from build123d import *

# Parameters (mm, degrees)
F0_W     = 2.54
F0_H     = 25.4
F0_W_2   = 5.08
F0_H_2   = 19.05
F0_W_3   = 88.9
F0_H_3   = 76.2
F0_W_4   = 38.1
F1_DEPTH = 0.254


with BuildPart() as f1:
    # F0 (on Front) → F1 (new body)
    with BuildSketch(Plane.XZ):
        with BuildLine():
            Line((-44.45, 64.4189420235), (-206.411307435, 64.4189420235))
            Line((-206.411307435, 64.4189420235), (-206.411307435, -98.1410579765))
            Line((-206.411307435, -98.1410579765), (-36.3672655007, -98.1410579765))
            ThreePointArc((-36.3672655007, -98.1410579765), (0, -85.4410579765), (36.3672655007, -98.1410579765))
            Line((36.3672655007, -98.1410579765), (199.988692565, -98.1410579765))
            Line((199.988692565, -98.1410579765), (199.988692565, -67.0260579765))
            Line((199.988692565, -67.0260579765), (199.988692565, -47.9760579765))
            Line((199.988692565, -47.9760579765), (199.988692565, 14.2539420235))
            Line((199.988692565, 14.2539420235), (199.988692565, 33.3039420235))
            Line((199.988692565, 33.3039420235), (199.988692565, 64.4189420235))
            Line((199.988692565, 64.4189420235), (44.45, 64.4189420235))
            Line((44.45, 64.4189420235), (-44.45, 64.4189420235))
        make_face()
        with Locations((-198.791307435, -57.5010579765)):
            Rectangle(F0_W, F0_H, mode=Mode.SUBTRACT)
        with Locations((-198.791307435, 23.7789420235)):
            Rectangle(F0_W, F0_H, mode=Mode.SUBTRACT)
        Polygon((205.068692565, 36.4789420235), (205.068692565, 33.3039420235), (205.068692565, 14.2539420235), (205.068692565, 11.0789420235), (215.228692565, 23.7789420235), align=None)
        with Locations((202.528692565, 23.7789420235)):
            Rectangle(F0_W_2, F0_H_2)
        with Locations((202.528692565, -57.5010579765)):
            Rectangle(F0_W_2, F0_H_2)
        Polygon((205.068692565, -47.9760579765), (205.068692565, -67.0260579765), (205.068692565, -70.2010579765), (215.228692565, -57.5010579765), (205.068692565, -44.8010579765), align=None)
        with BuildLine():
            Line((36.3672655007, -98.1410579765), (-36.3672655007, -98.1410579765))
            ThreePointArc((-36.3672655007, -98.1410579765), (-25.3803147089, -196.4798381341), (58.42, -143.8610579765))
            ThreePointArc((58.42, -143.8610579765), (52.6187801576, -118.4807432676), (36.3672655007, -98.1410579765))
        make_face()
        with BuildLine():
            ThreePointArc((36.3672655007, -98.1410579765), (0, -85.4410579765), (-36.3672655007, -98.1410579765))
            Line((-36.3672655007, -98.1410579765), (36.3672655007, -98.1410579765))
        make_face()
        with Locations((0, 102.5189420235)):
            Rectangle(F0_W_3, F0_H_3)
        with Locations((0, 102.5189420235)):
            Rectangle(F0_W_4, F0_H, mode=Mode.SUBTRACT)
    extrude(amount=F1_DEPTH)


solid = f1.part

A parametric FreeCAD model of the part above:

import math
import FreeCAD as App
import Part
import Sketcher
Q = App.Units.Quantity


def add_polygon(sketch, points):
    """Adds a closed chain of lines whose ends are joined by coincident constraints."""
    first, n = sketch.GeometryCount, len(points)
    for a, b in zip(points, points[1:] + points[:1]):
        sketch.addGeometry(Part.LineSegment(App.Vector(*a, 0), App.Vector(*b, 0)), False)
    for i in range(n):
        sketch.addConstraint(Sketcher.Constraint("Coincident", first + i, 2, first + (i + 1) % n, 1))

doc = App.newDocument("Part")
body = doc.addObject("PartDesign::Body", "Body")

sketch1 = doc.addObject("Sketcher::SketchObject", "Sketch")
body.addObject(sketch1)
sketch1.AttachmentSupport = (doc.XZ_Plane, [""])
sketch1.MapMode = "FlatFace"
sketch1.addGeometry(Part.LineSegment(App.Vector(-206.4, 64.4, 0), App.Vector(-206.4, -98.1, 0)), False)
sketch1.addGeometry(Part.LineSegment(App.Vector(-206.4, -98.1, 0), App.Vector(-36.4, -98.1, 0)), False)
sketch1.addGeometry(Part.ArcOfCircle(Part.Circle(App.Vector(0, -143.9, 0), App.Vector(0, 0, 1), 58.4), math.radians(128), math.radians(360)), False)
sketch1.addGeometry(Part.ArcOfCircle(Part.Circle(App.Vector(0, -143.9, 0), App.Vector(0, 0, 1), 58.4), math.radians(0), math.radians(52)), False)
sketch1.addGeometry(Part.LineSegment(App.Vector(36.4, -98.1, 0), App.Vector(200, -98.1, 0)), False)
sketch1.addGeometry(Part.LineSegment(App.Vector(200, -98.1, 0), App.Vector(200, -67, 0)), False)
sketch1.addGeometry(Part.LineSegment(App.Vector(200, -67, 0), App.Vector(205.1, -67, 0)), False)
sketch1.addGeometry(Part.LineSegment(App.Vector(205.1, -67, 0), App.Vector(205.1, -70.2, 0)), False)
sketch1.addGeometry(Part.LineSegment(App.Vector(205.1, -70.2, 0), App.Vector(215.2, -57.5, 0)), False)
sketch1.addGeometry(Part.LineSegment(App.Vector(215.2, -57.5, 0), App.Vector(205.1, -44.8, 0)), False)
sketch1.addGeometry(Part.LineSegment(App.Vector(205.1, -44.8, 0), App.Vector(205.1, -48, 0)), False)
sketch1.addGeometry(Part.LineSegment(App.Vector(205.1, -48, 0), App.Vector(200, -48, 0)), False)
sketch1.addGeometry(Part.LineSegment(App.Vector(200, -48, 0), App.Vector(200, 14.3, 0)), False)
sketch1.addGeometry(Part.LineSegment(App.Vector(200, 14.3, 0), App.Vector(205.1, 14.3, 0)), False)
sketch1.addGeometry(Part.LineSegment(App.Vector(205.1, 14.3, 0), App.Vector(205.1, 11.1, 0)), False)
sketch1.addGeometry(Part.LineSegment(App.Vector(205.1, 11.1, 0), App.Vector(215.2, 23.8, 0)), False)
sketch1.addGeometry(Part.LineSegment(App.Vector(215.2, 23.8, 0), App.Vector(205.1, 36.5, 0)), False)
sketch1.addGeometry(Part.LineSegment(App.Vector(205.1, 36.5, 0), App.Vector(205.1, 33.3, 0)), False)
sketch1.addGeometry(Part.LineSegment(App.Vector(205.1, 33.3, 0), App.Vector(200, 33.3, 0)), False)
sketch1.addGeometry(Part.LineSegment(App.Vector(200, 33.3, 0), App.Vector(200, 64.4, 0)), False)
sketch1.addGeometry(Part.LineSegment(App.Vector(200, 64.4, 0), App.Vector(44.5, 64.4, 0)), False)
sketch1.addGeometry(Part.LineSegment(App.Vector(44.5, 64.4, 0), App.Vector(44.5, 140.6, 0)), False)
sketch1.addGeometry(Part.LineSegment(App.Vector(44.5, 140.6, 0), App.Vector(-44.5, 140.6, 0)), False)
sketch1.addGeometry(Part.LineSegment(App.Vector(-44.5, 140.6, 0), App.Vector(-44.5, 64.4, 0)), False)
sketch1.addGeometry(Part.LineSegment(App.Vector(-44.5, 64.4, 0), App.Vector(-206.4, 64.4, 0)), False)
add_polygon(sketch1, [(-197.5, -70.2), (-200.1, -70.2), (-200.1, -44.8), (-197.5, -44.8)])
add_polygon(sketch1, [(-197.5, 11.1), (-200.1, 11.1), (-200.1, 36.5), (-197.5, 36.5)])
add_polygon(sketch1, [(19.1, 89.8), (-19.1, 89.8), (-19.1, 115.2), (19.1, 115.2)])
sketch1.addConstraint([
    Sketcher.Constraint("Coincident", 0, 2, 1, 1),
    Sketcher.Constraint("Coincident", 1, 2, 2, 1),
    Sketcher.Constraint("Tangent", 2, 2, 3, 1),
    Sketcher.Constraint("Coincident", 3, 2, 4, 1),
    Sketcher.Constraint("Coincident", 4, 2, 5, 1),
    Sketcher.Constraint("Coincident", 5, 2, 6, 1),
    Sketcher.Constraint("Coincident", 6, 2, 7, 1),
    Sketcher.Constraint("Coincident", 7, 2, 8, 1),
    Sketcher.Constraint("Coincident", 8, 2, 9, 1),
    Sketcher.Constraint("Coincident", 9, 2, 10, 1),
    Sketcher.Constraint("Coincident", 10, 2, 11, 1),
    Sketcher.Constraint("Coincident", 11, 2, 12, 1),
    Sketcher.Constraint("Coincident", 12, 2, 13, 1),
    Sketcher.Constraint("Coincident", 13, 2, 14, 1),
    Sketcher.Constraint("Coincident", 14, 2, 15, 1),
    Sketcher.Constraint("Coincident", 15, 2, 16, 1),
    Sketcher.Constraint("Coincident", 16, 2, 17, 1),
    Sketcher.Constraint("Coincident", 17, 2, 18, 1),
    Sketcher.Constraint("Coincident", 18, 2, 19, 1),
    Sketcher.Constraint("Coincident", 19, 2, 20, 1),
    Sketcher.Constraint("Coincident", 20, 2, 21, 1),
    Sketcher.Constraint("Coincident", 21, 2, 22, 1),
    Sketcher.Constraint("Coincident", 22, 2, 23, 1),
    Sketcher.Constraint("Coincident", 23, 2, 24, 1),
    Sketcher.Constraint("Coincident", 24, 2, 0, 1),
    Sketcher.Constraint("Vertical", 0),
    Sketcher.Constraint("Horizontal", 1),
    Sketcher.Constraint("Horizontal", 4),
    Sketcher.Constraint("Vertical", 5),
    Sketcher.Constraint("Horizontal", 6),
    Sketcher.Constraint("Vertical", 7),
    Sketcher.Constraint("Vertical", 10),
    Sketcher.Constraint("Horizontal", 11),
    Sketcher.Constraint("Vertical", 12),
    Sketcher.Constraint("Horizontal", 13),
    Sketcher.Constraint("Vertical", 14),
    Sketcher.Constraint("Vertical", 17),
    Sketcher.Constraint("Horizontal", 18),
    Sketcher.Constraint("Vertical", 19),
    Sketcher.Constraint("Horizontal", 20),
    Sketcher.Constraint("Vertical", 21),
    Sketcher.Constraint("Horizontal", 22),
    Sketcher.Constraint("Vertical", 23),
    Sketcher.Constraint("Horizontal", 24),
    Sketcher.Constraint("Horizontal", 25),
    Sketcher.Constraint("Vertical", 26),
    Sketcher.Constraint("Horizontal", 27),
    Sketcher.Constraint("Vertical", 28),
    Sketcher.Constraint("Horizontal", 29),
    Sketcher.Constraint("Vertical", 30),
    Sketcher.Constraint("Horizontal", 31),
    Sketcher.Constraint("Vertical", 32),
    Sketcher.Constraint("Horizontal", 33),
    Sketcher.Constraint("Vertical", 34),
    Sketcher.Constraint("Horizontal", 35),
    Sketcher.Constraint("Vertical", 36),
    Sketcher.Constraint("Equal", 2, 3),
    Sketcher.Constraint("Symmetric", 1, 2, 3, 2, -2),
    Sketcher.Constraint("Symmetric", 20, 2, 23, 2, -2),
    Sketcher.Constraint("Parallel", 8, 15),
    Sketcher.Constraint("Parallel", 9, 16),
    Sketcher.Constraint("Horizontal", 3, 3, 2, 2),
    Sketcher.Constraint("Horizontal", 7, 2, 25, 2),
    Sketcher.Constraint("Horizontal", 9, 2, 26, 2),
    Sketcher.Constraint("Horizontal", 14, 2, 29, 2),
    Sketcher.Constraint("Horizontal", 16, 2, 30, 2),
    Sketcher.Constraint("Vertical", 7, 2, 9, 2),
    Sketcher.Constraint("Vertical", 5, 2, 11, 2),
    Sketcher.Constraint("Vertical", 10, 2, 13, 2),
    Sketcher.Constraint("Vertical", 8, 2, 15, 2),
    Sketcher.Constraint("Vertical", 14, 2, 16, 2),
    Sketcher.Constraint("Vertical", 12, 2, 18, 2),
    Sketcher.Constraint("Vertical", 26, 2, 29, 2),
    Sketcher.Constraint("Vertical", 28, 2, 31, 2),
    Sketcher.Constraint("Equal", 7, 10),
    Sketcher.Constraint("Equal", 10, 14),
    Sketcher.Constraint("Equal", 14, 17),
    Sketcher.Constraint("Equal", 5, 19),
    Sketcher.Constraint("Equal", 32, 34),
    Sketcher.Constraint("Equal", 8, 9),
    Sketcher.Constraint("Radius", 2, Q("2.3 in")),
    Sketcher.Constraint("DistanceY", 21, 1, 21, 2, Q("3 in")),
    Sketcher.Constraint("DistanceY", 26, 1, 26, 2, Q("1 in")),
    Sketcher.Constraint("DistanceX", 6, 1, 6, 2, Q("0.2 in")),
    Sketcher.Constraint("DistanceX", 22, 2, 22, 1, Q("3.5 in")),
    Sketcher.Constraint("DistanceX", 25, 2, 25, 1, Q("0.1 in")),
    Sketcher.Constraint("DistanceX", 33, 2, 33, 1, Q("1.5 in")),
    Sketcher.Constraint("DistanceY", 0, 2, 0, 1, Q("6.4 in")),
    Sketcher.Constraint("DistanceX", 23, 2, 33, 2, Q("1 in")),
    Sketcher.Constraint("DistanceY", 23, 2, 33, 2, Q("1 in")),
    Sketcher.Constraint("DistanceY", 12, 1, 12, 2, Q("2.45 in")),
    Sketcher.Constraint("DistanceY", 2, 3, 0, 2, Q("1.8 in")),
    Sketcher.Constraint("DistanceY", 4, 2, 7, 2, Q("1.1 in")),
    Sketcher.Constraint("DistanceX", 6, 2, 8, 2, Q("0.4 in")),
    Sketcher.Constraint("DistanceX", 0, 2, 25, 2, Q("0.25 in")),
    Sketcher.Constraint("DistanceX", 1, 1, 1, 2, 170.044042),
    Sketcher.Constraint("DistanceX", 4, 1, 4, 2, 163.621427),
    Sketcher.Constraint("DistanceY", 2, 3, -1, 1, 143.861058),
])
pad1 = doc.addObject("PartDesign::Pad", "Pad")
body.addObject(pad1)
pad1.Profile = sketch1
pad1.Length = Q("0.01 in")

doc.recompute()
